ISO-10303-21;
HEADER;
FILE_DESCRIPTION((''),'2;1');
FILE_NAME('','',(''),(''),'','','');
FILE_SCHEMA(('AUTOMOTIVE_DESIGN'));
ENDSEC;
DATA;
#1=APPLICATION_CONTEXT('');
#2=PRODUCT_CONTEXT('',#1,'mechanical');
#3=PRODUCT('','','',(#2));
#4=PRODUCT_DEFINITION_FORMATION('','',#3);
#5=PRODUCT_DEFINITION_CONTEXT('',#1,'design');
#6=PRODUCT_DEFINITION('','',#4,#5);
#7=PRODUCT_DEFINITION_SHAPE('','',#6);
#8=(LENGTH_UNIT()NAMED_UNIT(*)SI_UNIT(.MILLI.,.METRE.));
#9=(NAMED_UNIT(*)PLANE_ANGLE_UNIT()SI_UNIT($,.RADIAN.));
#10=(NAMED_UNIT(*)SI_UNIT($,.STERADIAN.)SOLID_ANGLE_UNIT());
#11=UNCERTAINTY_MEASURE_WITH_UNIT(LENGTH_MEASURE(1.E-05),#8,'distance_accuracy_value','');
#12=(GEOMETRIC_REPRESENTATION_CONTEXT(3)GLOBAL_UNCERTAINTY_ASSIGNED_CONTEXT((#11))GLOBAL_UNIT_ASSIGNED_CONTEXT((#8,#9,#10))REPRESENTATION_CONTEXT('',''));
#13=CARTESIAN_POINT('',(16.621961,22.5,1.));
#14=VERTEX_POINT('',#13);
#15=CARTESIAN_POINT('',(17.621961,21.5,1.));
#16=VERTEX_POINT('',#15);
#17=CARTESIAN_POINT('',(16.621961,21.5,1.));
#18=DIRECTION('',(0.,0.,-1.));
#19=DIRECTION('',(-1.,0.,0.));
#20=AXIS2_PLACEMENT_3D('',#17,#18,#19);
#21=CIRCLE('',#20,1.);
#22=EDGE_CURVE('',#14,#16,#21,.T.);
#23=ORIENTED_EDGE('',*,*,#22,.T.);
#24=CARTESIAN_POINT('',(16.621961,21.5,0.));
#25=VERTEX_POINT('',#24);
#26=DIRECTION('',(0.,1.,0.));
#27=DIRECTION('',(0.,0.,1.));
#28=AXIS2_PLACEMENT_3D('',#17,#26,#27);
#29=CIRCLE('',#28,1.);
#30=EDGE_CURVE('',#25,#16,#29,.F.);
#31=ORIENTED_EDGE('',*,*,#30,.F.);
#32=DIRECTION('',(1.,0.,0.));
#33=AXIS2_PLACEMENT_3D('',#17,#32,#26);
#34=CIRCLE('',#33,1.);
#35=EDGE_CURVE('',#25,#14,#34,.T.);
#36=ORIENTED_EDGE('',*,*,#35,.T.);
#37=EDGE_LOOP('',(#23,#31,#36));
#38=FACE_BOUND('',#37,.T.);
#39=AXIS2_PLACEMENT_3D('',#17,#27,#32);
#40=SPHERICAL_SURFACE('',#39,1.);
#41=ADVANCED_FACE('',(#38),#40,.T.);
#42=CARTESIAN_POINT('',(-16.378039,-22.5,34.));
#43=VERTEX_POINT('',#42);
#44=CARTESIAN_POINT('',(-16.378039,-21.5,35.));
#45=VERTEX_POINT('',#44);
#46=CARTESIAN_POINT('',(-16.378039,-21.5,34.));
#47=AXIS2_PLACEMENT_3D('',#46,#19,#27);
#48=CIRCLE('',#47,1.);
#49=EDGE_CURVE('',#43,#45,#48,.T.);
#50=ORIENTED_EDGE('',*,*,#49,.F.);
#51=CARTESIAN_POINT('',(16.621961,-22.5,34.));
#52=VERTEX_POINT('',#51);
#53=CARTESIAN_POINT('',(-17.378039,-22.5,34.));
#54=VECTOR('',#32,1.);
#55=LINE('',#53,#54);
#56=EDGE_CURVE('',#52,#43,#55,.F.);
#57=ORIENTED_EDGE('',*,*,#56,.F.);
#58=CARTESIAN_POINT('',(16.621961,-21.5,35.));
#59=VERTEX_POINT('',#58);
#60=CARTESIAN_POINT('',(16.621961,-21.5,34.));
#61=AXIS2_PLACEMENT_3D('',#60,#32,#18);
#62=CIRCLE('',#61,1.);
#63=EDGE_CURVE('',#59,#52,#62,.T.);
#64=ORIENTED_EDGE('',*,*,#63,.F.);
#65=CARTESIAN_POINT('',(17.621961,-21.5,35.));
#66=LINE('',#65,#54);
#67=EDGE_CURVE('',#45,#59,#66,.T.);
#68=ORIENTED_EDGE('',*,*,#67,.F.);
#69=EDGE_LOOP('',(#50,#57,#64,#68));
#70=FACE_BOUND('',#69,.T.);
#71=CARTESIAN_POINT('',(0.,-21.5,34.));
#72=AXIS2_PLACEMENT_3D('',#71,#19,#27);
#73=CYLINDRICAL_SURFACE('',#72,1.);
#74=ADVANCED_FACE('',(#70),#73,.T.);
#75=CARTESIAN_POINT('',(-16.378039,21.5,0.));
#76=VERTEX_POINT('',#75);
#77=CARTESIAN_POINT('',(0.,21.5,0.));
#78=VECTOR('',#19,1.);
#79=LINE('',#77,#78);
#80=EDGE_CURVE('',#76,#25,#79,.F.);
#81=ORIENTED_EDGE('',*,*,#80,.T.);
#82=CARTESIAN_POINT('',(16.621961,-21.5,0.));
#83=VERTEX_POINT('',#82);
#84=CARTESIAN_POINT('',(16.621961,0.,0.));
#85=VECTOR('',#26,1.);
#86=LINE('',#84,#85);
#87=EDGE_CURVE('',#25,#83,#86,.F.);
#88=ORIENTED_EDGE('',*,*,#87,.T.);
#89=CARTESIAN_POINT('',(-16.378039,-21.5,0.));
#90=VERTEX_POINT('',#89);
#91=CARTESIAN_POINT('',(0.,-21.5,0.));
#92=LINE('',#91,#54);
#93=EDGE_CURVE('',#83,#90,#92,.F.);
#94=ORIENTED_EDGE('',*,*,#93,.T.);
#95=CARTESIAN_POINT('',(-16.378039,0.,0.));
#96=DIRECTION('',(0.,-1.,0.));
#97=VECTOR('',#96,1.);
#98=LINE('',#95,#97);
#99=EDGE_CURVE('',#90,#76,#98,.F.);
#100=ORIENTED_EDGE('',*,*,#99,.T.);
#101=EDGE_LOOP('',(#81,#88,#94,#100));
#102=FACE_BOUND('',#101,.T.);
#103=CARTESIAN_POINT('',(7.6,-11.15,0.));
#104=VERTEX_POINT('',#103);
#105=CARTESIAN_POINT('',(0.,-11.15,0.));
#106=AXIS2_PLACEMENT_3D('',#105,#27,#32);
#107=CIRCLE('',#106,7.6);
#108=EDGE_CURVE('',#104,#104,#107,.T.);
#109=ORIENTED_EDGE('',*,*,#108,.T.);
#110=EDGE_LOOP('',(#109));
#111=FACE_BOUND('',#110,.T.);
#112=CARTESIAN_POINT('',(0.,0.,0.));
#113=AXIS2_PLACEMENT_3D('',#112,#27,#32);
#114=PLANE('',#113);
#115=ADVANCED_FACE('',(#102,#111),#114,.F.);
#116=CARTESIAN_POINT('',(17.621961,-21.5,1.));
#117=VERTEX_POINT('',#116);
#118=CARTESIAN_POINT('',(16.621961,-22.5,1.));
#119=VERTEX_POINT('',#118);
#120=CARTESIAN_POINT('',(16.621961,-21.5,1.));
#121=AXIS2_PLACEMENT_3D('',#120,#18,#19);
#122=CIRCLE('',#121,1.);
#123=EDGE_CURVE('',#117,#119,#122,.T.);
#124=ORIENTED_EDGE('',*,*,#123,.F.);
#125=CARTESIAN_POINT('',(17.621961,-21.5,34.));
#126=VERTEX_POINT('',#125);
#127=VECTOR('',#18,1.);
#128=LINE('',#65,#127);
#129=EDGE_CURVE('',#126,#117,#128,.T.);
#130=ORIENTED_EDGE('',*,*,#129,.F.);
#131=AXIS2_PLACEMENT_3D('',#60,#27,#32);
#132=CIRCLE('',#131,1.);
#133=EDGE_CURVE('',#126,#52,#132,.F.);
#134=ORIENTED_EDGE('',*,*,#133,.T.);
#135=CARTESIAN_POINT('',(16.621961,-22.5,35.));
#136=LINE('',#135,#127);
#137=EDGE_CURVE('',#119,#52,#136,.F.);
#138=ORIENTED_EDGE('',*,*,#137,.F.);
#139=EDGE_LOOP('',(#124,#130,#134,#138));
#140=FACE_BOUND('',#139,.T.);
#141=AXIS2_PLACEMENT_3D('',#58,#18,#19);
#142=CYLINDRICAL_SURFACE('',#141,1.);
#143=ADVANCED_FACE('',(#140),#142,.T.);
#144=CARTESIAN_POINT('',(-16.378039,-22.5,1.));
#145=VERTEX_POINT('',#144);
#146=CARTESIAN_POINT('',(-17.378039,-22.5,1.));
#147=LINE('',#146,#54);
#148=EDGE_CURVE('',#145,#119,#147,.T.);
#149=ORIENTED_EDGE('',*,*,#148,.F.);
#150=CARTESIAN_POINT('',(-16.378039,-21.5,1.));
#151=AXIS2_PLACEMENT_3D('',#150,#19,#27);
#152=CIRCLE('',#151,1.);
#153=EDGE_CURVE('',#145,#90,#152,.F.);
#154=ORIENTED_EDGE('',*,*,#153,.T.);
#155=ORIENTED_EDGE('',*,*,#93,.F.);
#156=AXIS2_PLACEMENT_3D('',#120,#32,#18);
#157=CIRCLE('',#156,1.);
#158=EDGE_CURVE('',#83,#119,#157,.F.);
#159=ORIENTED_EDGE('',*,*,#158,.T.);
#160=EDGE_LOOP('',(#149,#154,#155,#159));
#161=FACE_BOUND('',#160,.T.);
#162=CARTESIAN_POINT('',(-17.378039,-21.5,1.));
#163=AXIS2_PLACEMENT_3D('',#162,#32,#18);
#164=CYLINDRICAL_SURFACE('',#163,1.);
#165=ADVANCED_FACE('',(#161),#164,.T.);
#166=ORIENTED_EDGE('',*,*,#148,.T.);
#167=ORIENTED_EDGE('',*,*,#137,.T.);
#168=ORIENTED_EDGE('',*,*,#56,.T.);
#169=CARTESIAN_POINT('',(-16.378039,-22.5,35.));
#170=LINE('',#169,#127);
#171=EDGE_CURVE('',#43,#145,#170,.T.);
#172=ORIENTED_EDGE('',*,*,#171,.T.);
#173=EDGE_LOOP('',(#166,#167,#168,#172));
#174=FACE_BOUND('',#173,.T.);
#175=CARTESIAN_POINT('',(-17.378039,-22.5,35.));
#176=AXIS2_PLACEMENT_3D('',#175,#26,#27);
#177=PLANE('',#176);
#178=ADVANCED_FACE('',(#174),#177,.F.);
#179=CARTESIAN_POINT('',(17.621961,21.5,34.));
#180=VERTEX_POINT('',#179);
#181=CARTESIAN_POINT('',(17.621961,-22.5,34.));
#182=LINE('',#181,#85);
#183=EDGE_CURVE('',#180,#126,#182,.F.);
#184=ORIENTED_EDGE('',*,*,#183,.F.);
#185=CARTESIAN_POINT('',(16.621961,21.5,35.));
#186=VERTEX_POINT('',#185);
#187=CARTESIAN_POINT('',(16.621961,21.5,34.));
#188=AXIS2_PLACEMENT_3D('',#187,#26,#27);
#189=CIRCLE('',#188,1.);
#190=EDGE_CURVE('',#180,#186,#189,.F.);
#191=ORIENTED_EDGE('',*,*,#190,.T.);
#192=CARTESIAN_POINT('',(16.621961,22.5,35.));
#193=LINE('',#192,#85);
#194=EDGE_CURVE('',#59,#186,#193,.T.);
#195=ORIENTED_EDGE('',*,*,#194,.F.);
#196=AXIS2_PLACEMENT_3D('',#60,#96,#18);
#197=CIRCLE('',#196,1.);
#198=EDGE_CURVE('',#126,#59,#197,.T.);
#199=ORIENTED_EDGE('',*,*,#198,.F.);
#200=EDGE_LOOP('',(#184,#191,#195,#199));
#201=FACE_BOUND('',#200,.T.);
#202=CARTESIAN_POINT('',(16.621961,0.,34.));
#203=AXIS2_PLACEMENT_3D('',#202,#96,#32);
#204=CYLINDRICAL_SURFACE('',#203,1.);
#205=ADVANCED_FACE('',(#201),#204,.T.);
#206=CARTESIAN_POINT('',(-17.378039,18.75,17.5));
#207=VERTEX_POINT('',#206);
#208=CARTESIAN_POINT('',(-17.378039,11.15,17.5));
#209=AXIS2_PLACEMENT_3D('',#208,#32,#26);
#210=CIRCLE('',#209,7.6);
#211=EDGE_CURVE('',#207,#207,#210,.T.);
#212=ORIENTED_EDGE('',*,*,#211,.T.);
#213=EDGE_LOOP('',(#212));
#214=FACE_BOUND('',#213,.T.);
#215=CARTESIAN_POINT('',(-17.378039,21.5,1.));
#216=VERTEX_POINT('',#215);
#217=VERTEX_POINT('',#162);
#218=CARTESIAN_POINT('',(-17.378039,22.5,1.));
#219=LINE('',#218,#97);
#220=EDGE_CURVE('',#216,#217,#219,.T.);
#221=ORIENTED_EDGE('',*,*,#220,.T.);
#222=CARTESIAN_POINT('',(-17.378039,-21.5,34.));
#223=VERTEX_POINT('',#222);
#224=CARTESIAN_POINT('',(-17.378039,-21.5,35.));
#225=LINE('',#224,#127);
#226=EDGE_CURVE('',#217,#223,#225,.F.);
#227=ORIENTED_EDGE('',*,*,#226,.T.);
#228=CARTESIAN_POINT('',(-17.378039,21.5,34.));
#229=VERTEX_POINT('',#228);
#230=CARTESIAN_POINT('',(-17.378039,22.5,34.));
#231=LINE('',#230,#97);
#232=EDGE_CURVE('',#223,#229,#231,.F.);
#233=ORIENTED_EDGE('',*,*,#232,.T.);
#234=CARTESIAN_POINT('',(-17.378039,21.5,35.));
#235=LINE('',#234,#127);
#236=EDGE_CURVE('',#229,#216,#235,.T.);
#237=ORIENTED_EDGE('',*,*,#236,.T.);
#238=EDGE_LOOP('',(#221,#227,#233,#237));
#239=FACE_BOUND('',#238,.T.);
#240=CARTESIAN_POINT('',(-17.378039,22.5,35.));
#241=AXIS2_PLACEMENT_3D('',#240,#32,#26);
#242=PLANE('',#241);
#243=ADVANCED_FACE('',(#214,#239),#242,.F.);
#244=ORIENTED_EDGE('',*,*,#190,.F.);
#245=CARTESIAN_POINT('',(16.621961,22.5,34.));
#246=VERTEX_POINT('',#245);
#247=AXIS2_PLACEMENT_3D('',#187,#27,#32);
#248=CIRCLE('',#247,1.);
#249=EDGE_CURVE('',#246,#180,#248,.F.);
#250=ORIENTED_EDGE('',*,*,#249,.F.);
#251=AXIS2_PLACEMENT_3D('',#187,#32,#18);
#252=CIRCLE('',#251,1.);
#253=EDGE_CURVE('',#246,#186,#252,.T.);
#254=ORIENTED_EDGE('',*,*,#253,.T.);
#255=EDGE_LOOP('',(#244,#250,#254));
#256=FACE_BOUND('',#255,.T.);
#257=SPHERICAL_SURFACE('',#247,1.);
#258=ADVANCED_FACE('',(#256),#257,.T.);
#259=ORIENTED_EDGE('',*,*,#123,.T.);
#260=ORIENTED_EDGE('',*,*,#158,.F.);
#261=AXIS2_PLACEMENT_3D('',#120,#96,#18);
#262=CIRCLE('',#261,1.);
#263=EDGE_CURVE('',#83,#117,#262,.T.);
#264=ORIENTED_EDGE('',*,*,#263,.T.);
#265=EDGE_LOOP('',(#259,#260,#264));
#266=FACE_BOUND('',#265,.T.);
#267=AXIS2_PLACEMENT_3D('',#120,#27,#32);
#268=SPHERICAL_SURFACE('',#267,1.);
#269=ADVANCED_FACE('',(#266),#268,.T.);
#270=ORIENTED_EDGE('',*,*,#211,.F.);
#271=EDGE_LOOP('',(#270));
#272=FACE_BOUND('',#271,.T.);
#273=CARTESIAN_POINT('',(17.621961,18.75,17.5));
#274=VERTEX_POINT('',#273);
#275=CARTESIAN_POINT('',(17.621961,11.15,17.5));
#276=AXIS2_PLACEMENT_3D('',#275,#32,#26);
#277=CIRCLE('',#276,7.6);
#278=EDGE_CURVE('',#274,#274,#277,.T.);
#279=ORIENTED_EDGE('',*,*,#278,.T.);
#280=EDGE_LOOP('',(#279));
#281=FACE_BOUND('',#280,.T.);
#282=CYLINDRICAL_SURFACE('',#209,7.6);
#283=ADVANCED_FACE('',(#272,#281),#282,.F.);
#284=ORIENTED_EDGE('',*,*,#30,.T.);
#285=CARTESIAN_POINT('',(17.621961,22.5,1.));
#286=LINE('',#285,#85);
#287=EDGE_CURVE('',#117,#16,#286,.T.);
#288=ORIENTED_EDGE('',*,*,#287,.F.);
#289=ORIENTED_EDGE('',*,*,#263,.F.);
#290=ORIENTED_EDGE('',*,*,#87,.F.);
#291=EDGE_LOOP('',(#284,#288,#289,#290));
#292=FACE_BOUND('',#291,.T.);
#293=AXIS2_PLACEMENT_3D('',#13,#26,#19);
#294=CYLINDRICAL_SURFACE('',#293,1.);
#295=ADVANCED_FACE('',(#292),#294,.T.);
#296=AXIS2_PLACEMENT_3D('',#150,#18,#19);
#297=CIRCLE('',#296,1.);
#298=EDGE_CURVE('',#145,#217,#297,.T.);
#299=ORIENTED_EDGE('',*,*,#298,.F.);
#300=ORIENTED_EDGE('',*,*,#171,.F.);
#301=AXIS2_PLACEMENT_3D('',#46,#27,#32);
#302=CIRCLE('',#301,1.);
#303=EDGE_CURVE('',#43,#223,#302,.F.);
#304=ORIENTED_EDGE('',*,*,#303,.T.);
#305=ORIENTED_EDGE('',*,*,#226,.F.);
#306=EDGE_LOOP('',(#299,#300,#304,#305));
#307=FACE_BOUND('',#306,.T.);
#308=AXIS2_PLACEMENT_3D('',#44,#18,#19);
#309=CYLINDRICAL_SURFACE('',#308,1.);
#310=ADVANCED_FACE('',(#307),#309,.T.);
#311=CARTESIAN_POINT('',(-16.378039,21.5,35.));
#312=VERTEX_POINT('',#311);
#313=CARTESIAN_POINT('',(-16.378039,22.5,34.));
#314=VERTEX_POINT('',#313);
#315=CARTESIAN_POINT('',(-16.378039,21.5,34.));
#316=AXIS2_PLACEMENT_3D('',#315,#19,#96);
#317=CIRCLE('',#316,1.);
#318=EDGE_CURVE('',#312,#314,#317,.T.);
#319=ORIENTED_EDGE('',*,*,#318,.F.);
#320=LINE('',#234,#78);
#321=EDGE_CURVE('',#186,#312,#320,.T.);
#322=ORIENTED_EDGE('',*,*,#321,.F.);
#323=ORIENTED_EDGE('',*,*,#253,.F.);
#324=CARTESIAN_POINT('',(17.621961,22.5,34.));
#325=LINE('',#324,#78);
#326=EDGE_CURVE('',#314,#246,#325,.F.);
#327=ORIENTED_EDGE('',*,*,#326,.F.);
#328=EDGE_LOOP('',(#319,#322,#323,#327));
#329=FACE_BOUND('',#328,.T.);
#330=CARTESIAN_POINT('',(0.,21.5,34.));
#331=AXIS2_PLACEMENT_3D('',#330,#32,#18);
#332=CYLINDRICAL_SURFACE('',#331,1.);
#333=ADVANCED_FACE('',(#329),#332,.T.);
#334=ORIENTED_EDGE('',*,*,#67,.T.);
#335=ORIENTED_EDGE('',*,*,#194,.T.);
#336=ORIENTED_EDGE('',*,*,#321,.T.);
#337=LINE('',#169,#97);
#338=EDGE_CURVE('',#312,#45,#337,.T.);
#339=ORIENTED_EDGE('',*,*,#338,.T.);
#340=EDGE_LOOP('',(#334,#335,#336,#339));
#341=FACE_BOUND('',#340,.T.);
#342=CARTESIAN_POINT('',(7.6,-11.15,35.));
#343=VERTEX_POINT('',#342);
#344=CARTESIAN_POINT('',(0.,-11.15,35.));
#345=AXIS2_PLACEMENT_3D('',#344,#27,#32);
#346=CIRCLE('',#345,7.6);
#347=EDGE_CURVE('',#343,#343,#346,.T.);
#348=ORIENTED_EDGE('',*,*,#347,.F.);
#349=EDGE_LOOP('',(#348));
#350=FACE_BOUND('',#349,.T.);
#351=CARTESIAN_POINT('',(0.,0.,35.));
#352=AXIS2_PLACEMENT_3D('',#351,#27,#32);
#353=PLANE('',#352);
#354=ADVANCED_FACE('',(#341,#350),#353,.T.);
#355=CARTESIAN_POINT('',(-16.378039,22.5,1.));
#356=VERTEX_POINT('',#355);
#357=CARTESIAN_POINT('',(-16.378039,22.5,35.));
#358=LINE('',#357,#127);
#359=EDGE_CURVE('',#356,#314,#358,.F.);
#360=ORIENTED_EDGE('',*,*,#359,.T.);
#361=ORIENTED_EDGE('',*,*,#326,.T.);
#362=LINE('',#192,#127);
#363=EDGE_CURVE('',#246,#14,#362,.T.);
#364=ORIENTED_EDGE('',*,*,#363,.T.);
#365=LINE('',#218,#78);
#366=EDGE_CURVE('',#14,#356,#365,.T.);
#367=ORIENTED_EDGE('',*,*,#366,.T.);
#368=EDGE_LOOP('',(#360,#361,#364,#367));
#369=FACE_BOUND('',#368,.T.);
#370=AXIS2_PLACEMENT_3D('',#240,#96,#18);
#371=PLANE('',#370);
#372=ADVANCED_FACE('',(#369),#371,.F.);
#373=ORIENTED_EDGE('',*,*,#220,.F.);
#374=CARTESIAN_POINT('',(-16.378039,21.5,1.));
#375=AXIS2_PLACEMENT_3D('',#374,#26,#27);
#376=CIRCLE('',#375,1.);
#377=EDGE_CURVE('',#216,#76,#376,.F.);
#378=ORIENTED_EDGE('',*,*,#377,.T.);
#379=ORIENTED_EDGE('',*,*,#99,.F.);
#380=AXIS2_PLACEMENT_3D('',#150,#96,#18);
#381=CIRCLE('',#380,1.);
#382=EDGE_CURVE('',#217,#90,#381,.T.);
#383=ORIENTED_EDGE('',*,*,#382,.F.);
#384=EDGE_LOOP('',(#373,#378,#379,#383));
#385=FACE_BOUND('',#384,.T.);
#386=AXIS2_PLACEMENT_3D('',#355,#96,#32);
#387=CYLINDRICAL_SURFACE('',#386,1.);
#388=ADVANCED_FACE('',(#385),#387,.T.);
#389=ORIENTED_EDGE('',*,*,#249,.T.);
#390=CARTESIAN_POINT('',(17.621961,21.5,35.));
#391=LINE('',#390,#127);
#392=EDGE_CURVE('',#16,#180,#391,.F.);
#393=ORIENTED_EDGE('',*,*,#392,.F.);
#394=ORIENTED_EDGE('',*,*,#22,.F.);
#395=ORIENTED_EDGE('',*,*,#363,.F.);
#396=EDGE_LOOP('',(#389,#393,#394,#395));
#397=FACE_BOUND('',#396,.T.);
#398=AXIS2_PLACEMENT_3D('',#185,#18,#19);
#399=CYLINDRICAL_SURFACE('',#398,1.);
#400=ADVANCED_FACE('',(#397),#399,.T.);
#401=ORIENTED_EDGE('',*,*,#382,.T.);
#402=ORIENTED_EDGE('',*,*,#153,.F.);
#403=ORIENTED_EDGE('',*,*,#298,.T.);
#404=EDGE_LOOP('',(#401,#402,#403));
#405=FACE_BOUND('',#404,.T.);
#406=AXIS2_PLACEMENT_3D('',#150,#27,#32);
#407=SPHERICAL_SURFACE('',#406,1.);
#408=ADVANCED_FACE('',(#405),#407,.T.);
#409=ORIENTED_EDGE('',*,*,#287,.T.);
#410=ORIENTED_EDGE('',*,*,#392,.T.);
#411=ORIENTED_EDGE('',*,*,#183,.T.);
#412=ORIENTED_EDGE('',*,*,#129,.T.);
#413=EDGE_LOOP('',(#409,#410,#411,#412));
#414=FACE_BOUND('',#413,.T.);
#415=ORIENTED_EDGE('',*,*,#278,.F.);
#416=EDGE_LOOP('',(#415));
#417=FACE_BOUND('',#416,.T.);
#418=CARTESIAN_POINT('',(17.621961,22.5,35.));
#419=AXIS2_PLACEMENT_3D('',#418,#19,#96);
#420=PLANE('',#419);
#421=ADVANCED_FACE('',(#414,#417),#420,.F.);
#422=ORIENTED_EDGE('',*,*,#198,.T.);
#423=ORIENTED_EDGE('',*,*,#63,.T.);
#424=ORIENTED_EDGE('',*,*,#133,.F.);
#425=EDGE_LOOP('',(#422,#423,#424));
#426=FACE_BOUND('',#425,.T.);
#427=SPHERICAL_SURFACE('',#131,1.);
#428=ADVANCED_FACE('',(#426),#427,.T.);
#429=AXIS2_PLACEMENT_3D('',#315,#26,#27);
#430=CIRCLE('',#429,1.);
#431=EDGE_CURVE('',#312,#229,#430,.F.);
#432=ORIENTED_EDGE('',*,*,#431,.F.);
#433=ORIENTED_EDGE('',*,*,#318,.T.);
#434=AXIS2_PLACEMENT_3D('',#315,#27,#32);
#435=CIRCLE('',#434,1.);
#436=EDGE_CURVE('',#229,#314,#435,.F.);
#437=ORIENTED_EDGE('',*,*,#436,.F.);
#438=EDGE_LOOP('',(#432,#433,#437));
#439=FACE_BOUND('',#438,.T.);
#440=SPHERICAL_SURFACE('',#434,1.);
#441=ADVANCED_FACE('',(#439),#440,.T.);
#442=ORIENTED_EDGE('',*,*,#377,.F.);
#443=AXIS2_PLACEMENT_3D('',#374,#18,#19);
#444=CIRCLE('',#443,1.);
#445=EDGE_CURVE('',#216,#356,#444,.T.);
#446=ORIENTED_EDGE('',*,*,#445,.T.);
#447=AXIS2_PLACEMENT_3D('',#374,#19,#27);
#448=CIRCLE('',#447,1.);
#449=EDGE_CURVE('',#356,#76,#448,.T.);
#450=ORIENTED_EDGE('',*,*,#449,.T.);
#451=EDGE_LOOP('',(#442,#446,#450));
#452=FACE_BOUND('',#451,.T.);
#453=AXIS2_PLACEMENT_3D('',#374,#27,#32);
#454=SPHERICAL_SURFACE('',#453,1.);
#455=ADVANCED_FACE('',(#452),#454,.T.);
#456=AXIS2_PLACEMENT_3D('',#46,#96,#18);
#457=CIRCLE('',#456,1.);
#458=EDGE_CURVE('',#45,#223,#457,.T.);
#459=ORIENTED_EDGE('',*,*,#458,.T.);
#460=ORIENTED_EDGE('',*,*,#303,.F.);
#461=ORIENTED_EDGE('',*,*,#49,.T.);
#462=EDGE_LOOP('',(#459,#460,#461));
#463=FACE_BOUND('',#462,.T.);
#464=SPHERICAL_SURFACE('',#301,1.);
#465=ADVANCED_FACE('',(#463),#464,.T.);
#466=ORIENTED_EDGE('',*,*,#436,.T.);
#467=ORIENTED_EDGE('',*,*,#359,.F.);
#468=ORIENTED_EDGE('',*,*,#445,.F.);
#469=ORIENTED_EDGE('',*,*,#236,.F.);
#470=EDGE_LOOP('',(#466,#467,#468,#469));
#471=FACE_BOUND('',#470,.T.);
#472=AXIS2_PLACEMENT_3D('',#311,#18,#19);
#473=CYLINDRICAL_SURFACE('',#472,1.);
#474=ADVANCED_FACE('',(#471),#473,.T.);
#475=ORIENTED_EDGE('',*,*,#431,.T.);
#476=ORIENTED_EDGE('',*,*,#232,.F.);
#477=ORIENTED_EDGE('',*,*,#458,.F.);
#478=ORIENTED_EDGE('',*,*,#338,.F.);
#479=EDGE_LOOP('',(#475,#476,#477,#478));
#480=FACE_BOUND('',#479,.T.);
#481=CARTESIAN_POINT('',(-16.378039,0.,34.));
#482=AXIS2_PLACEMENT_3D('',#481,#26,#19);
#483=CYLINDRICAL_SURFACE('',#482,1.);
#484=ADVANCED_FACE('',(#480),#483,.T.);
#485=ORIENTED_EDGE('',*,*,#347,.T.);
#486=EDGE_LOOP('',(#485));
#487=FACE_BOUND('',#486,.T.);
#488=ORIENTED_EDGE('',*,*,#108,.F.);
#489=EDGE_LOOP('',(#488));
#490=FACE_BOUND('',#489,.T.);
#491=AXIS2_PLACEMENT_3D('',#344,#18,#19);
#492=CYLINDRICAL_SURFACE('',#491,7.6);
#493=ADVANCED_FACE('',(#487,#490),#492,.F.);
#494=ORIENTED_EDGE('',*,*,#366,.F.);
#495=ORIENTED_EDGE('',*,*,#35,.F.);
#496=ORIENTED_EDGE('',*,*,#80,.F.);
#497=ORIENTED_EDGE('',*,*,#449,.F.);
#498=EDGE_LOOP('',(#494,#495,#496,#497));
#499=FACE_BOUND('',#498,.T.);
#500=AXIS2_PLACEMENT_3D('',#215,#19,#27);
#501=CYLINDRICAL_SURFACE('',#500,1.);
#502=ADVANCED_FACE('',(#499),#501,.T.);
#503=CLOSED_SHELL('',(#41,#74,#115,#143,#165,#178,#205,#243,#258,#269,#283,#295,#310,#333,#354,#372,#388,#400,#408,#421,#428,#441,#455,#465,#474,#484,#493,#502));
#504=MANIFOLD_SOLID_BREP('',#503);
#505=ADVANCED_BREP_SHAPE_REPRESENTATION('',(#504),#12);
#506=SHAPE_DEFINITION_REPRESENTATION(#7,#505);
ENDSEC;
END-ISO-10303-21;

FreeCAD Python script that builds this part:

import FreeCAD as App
import Part
import Sketcher

V = App.Vector


def edges_at(feature, points):
    """Names of the edges that pass closest to the given points."""
    edges = feature.Shape.Edges
    near = lambda p: min(range(len(edges)), key=lambda i: edges[i].distToShape(Part.Vertex(*p))[0])
    return sorted({f"Edge{near(p) + 1}" for p in points})

doc = App.newDocument("Part")
body = doc.addObject("PartDesign::Body", "Body")

# Sketch on XY plane
sketch1 = body.newObject("Sketcher::SketchObject", "Sketch")
sketch1.AttachmentSupport = (doc.getObject("XY_Plane"), [""])
sketch1.MapMode = "FlatFace"
sketch1.addGeometry([
    Part.LineSegment(V(-17.378039, 22.5, 0), V(-17.378039, -22.5, 0)),  # 0
    Part.LineSegment(V(-17.378039, -22.5, 0), V(17.621961, -22.5, 0)),  # 1
    Part.LineSegment(V(17.621961, -22.5, 0), V(17.621961, 22.5, 0)),  # 2
    Part.LineSegment(V(17.621961, 22.5, 0), V(-17.378039, 22.5, 0)),  # 3
    Part.Circle(V(0, -11.15, 0), V(0, 0, 1), 7.6),  # 4
], False)
sketch1.addConstraint([
    Sketcher.Constraint("Coincident", 0, 2, 1, 1),
    Sketcher.Constraint("Coincident", 1, 2, 2, 1),
    Sketcher.Constraint("Coincident", 2, 2, 3, 1),
    Sketcher.Constraint("Coincident", 3, 2, 0, 1),
    Sketcher.Constraint("Vertical", 0),
    Sketcher.Constraint("Horizontal", 1),
    Sketcher.Constraint("Vertical", 2),
    Sketcher.Constraint("Horizontal", 3),
    Sketcher.Constraint("PointOnObject", 4, 3, -2),
    Sketcher.Constraint("Diameter", 4, 15.2),
    Sketcher.Constraint("DistanceX", 1, 1, 1, 2, 35.0),
    Sketcher.Constraint("DistanceY", 0, 2, 0, 1, 45.0),
    Sketcher.Constraint("DistanceY", 0, 2, -1, 1, 22.5),
    Sketcher.Constraint("DistanceY", 4, 3, -1, 1, 11.15),
    Sketcher.Constraint("DistanceX", 0, 2, -1, 1, 17.378039),
])
pad1 = body.newObject("PartDesign::Pad", "Pad")
pad1.Profile = sketch1
pad1.Length = 35

# Sketch on YZ plane
sketch2 = body.newObject("Sketcher::SketchObject", "Sketch001")
sketch2.AttachmentSupport = (doc.getObject("YZ_Plane"), [""])
sketch2.MapMode = "FlatFace"
sketch2.AttachmentOffset = App.Placement(V(0, 0, 17.621961), App.Rotation())
sketch2.addGeometry(Part.Circle(V(11.15, 17.5, 0), V(0, 0, 1), 7.6), False)
sketch2.addConstraint([
    Sketcher.Constraint("Diameter", 0, 15.2),
    Sketcher.Constraint("DistanceY", -1, 1, 0, 3, 17.5),
    Sketcher.Constraint("DistanceX", -1, 1, 0, 3, 11.15),
])
pocket1 = body.newObject("PartDesign::Pocket", "Pocket")
pocket1.Profile = sketch2
pocket1.Length = 35
doc.recompute()

fillet = body.newObject("PartDesign::Fillet", "Fillet")
fillet.Base = (pocket1, edges_at(pocket1, [
    (17.622, 0, 35),
    (0.122, 22.5, 35),
    (-17.378, 0, 35),
    (0.122, 22.5, 0),
    (17.622, 0, 0),
    (0.122, -22.5, 0),
    (-17.378, 0, 0),
    (0.122, -22.5, 35),
    (-17.378, 22.5, 17.5),
    (17.622, 22.5, 17.5),
    (17.622, -22.5, 17.5),
    (-17.378, -22.5, 17.5),
]))
fillet.Radius = 1

doc.recompute()
